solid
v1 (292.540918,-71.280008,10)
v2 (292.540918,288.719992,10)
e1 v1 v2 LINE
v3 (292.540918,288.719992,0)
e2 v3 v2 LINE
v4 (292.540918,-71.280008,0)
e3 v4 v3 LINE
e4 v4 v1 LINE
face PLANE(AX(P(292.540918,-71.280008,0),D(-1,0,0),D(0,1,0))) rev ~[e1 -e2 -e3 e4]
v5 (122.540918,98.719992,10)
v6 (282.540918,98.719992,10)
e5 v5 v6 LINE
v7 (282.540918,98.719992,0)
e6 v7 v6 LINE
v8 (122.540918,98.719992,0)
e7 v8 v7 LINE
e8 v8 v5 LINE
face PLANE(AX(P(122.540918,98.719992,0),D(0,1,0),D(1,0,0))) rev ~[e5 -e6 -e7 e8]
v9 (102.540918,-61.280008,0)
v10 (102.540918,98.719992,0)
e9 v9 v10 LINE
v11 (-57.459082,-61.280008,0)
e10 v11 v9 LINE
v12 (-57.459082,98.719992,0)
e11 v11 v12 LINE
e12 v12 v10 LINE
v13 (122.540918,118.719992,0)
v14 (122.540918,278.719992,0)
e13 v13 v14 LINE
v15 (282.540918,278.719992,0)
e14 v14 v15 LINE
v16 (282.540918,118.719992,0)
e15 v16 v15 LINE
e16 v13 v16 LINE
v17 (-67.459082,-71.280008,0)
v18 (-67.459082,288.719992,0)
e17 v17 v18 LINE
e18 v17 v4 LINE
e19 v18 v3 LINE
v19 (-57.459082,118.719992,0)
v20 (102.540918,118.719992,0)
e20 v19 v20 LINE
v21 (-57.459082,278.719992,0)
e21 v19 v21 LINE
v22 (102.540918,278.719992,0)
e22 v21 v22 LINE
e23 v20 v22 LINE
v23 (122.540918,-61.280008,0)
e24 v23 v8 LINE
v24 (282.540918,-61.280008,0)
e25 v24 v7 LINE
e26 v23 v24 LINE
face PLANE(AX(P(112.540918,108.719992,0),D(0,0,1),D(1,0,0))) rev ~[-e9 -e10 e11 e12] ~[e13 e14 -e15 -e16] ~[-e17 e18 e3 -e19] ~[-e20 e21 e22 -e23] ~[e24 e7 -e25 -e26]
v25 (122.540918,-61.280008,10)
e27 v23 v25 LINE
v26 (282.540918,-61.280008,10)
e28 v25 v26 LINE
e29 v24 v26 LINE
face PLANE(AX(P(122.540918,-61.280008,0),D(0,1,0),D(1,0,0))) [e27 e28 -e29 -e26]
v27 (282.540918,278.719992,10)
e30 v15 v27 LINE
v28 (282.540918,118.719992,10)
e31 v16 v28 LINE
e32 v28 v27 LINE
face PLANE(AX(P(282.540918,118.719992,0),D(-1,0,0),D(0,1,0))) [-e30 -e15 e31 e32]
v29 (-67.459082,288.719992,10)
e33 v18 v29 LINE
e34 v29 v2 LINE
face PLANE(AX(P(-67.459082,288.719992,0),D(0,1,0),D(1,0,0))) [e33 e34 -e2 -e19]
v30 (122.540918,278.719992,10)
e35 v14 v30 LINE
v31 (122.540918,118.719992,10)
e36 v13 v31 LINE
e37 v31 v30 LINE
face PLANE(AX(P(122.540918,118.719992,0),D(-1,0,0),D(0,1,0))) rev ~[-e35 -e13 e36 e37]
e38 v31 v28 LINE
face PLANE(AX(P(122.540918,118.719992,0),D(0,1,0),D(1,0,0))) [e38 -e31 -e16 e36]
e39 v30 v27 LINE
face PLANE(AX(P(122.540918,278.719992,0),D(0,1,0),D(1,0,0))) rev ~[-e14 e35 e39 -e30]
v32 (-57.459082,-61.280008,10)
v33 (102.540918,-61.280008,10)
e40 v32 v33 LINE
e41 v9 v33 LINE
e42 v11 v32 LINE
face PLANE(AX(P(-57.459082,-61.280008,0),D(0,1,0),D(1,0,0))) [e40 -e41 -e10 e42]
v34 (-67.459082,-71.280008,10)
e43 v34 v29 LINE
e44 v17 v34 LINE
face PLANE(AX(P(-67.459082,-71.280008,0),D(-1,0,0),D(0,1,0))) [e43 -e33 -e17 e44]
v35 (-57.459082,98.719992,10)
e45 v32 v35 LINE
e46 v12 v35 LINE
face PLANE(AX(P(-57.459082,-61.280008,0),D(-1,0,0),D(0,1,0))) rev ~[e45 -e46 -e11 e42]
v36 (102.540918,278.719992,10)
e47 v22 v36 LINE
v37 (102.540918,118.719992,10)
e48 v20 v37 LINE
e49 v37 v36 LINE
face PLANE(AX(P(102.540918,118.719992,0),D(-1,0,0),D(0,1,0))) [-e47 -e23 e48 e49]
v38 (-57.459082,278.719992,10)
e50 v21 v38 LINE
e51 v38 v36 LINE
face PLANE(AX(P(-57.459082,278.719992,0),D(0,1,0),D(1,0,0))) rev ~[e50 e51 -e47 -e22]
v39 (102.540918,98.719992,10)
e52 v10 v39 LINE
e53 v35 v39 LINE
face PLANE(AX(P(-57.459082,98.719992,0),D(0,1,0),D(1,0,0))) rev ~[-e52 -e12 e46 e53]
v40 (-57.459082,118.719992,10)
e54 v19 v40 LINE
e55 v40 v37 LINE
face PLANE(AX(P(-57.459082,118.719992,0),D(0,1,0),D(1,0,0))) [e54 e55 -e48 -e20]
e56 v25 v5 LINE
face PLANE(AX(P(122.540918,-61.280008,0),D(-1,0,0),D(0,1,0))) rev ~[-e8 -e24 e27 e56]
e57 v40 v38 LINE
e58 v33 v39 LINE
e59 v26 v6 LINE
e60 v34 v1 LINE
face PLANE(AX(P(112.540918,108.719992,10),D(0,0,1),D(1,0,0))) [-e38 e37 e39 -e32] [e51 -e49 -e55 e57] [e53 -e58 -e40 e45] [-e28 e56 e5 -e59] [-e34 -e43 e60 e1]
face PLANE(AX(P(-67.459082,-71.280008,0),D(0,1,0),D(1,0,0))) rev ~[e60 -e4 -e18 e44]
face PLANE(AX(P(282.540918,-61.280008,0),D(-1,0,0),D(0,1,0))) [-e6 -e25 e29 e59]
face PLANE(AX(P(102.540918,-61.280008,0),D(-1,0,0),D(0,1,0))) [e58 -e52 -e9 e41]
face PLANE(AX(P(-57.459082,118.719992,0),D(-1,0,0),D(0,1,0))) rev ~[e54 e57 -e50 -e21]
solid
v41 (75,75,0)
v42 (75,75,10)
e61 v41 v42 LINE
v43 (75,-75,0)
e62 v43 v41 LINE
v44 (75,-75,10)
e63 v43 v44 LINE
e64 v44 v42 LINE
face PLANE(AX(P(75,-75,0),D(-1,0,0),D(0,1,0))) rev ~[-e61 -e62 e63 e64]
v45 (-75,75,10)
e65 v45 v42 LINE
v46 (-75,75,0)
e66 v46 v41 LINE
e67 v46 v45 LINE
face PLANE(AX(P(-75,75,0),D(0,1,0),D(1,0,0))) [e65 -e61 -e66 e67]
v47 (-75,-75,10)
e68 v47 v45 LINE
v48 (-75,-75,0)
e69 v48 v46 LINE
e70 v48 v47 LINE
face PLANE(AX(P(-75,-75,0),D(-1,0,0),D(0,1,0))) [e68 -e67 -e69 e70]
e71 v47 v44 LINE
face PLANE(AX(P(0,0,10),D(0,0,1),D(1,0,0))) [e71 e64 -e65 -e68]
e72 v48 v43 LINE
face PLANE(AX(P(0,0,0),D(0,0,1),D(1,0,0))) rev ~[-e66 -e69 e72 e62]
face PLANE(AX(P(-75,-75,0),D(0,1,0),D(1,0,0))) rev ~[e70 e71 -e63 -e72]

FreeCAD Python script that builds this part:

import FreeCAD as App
import Part
import Sketcher

doc = App.newDocument("Part")
body = doc.addObject("PartDesign::Body", "Body")

# Sketch on XY plane
sketch1 = doc.addObject("Sketcher::SketchObject", "Sketch")
body.addObject(sketch1)
sketch1.AttachmentSupport = (doc.XY_Plane, [""])
sketch1.MapMode = "FlatFace"
sketch1.addGeometry([
    Part.LineSegment(App.Vector(-75, 75, 0), App.Vector(-75, -75, 0)),
    Part.LineSegment(App.Vector(-75, -75, 0), App.Vector(75, -75, 0)),
    Part.LineSegment(App.Vector(75, -75, 0), App.Vector(75, 75, 0)),
    Part.LineSegment(App.Vector(75, 75, 0), App.Vector(-75, 75, 0)),
], False)
sketch1.addConstraint([
    Sketcher.Constraint("Coincident", 0, 2, 1, 1),
    Sketcher.Constraint("Coincident", 1, 2, 2, 1),
    Sketcher.Constraint("Coincident", 2, 2, 3, 1),
    Sketcher.Constraint("Coincident", 3, 2, 0, 1),
    Sketcher.Constraint("Vertical", 0),
    Sketcher.Constraint("Horizontal", 1),
    Sketcher.Constraint("Vertical", 2),
    Sketcher.Constraint("Horizontal", 3),
    Sketcher.Constraint("Symmetric", 0, 2, 2, 2, -1, 1),
    Sketcher.Constraint("Equal", 3, 0),
    Sketcher.Constraint("DistanceX", 1, 1, 1, 2, 150.0),
])
pad1 = doc.addObject("PartDesign::Pad", "Pad")
body.addObject(pad1)
pad1.Profile = sketch1
pad1.Length = 10
body2 = doc.addObject("PartDesign::Body", "Body001")

# Sketch on XY plane
sketch2 = doc.addObject("Sketcher::SketchObject", "Sketch001")
body2.addObject(sketch2)
sketch2.AttachmentSupport = (doc.getObject("XY_Plane001"), [""])
sketch2.MapMode = "FlatFace"
sketch2.addGeometry([
    Part.LineSegment(App.Vector(-67, 289, 0), App.Vector(-67, -71, 0)),  # 0
    Part.LineSegment(App.Vector(-67, -71, 0), App.Vector(293, -71, 0)),  # 1
    Part.LineSegment(App.Vector(293, -71, 0), App.Vector(293, 289, 0)),  # 2
    Part.LineSegment(App.Vector(293, 289, 0), App.Vector(-67, 289, 0)),  # 3
    Part.LineSegment(App.Vector(103, -61, 0), App.Vector(-57, -61, 0)),  # 4
    Part.LineSegment(App.Vector(-57, -61, 0), App.Vector(-57, 99, 0)),  # 5
    Part.LineSegment(App.Vector(-57, 99, 0), App.Vector(103, 99, 0)),  # 6
    Part.LineSegment(App.Vector(103, 99, 0), App.Vector(103, -61, 0)),  # 7
    Part.LineSegment(App.Vector(283, -61, 0), App.Vector(123, -61, 0)),  # 8
    Part.LineSegment(App.Vector(123, -61, 0), App.Vector(123, 99, 0)),  # 9
    Part.LineSegment(App.Vector(123, 99, 0), App.Vector(283, 99, 0)),  # 10
    Part.LineSegment(App.Vector(283, 99, 0), App.Vector(283, -61, 0)),  # 11
    Part.LineSegment(App.Vector(103, 119, 0), App.Vector(-57, 119, 0)),  # 12
    Part.LineSegment(App.Vector(-57, 119, 0), App.Vector(-57, 279, 0)),  # 13
    Part.LineSegment(App.Vector(-57, 279, 0), App.Vector(103, 279, 0)),  # 14
    Part.LineSegment(App.Vector(103, 279, 0), App.Vector(103, 119, 0)),  # 15
    Part.LineSegment(App.Vector(283, 119, 0), App.Vector(123, 119, 0)),  # 16
    Part.LineSegment(App.Vector(123, 119, 0), App.Vector(123, 279, 0)),  # 17
    Part.LineSegment(App.Vector(123, 279, 0), App.Vector(283, 279, 0)),  # 18
    Part.LineSegment(App.Vector(283, 279, 0), App.Vector(283, 119, 0)),  # 19
], False)
sketch2.addConstraint([
    Sketcher.Constraint("Coincident", 0, 2, 1, 1),
    Sketcher.Constraint("Coincident", 1, 2, 2, 1),
    Sketcher.Constraint("Coincident", 2, 2, 3, 1),
    Sketcher.Constraint("Coincident", 3, 2, 0, 1),
    Sketcher.Constraint("Coincident", 4, 2, 5, 1),
    Sketcher.Constraint("Coincident", 5, 2, 6, 1),
    Sketcher.Constraint("Coincident", 6, 2, 7, 1),
    Sketcher.Constraint("Coincident", 7, 2, 4, 1),
    Sketcher.Constraint("Coincident", 8, 2, 9, 1),
    Sketcher.Constraint("Coincident", 9, 2, 10, 1),
    Sketcher.Constraint("Coincident", 10, 2, 11, 1),
    Sketcher.Constraint("Coincident", 11, 2, 8, 1),
    Sketcher.Constraint("Coincident", 12, 2, 13, 1),
    Sketcher.Constraint("Coincident", 13, 2, 14, 1),
    Sketcher.Constraint("Coincident", 14, 2, 15, 1),
    Sketcher.Constraint("Coincident", 15, 2, 12, 1),
    Sketcher.Constraint("Coincident", 16, 2, 17, 1),
    Sketcher.Constraint("Coincident", 17, 2, 18, 1),
    Sketcher.Constraint("Coincident", 18, 2, 19, 1),
    Sketcher.Constraint("Coincident", 19, 2, 16, 1),
    Sketcher.Constraint("Vertical", 0),
    Sketcher.Constraint("Horizontal", 1),
    Sketcher.Constraint("Vertical", 2),
    Sketcher.Constraint("Horizontal", 3),
    Sketcher.Constraint("Horizontal", 4),
    Sketcher.Constraint("Vertical", 5),
    Sketcher.Constraint("Horizontal", 6),
    Sketcher.Constraint("Vertical", 7),
    Sketcher.Constraint("Horizontal", 8),
    Sketcher.Constraint("Vertical", 9),
    Sketcher.Constraint("Horizontal", 10),
    Sketcher.Constraint("Vertical", 11),
    Sketcher.Constraint("Horizontal", 12),
    Sketcher.Constraint("Vertical", 13),
    Sketcher.Constraint("Horizontal", 14),
    Sketcher.Constraint("Vertical", 15),
    Sketcher.Constraint("Horizontal", 16),
    Sketcher.Constraint("Vertical", 17),
    Sketcher.Constraint("Horizontal", 18),
    Sketcher.Constraint("Vertical", 19),
    Sketcher.Constraint("Horizontal", 7, 2, 8, 2),
    Sketcher.Constraint("Horizontal", 6, 2, 9, 2),
    Sketcher.Constraint("Horizontal", 15, 2, 16, 2),
    Sketcher.Constraint("Horizontal", 14, 2, 17, 2),
    Sketcher.Constraint("Vertical", 5, 2, 12, 2),
    Sketcher.Constraint("Vertical", 7, 2, 14, 2),
    Sketcher.Constraint("Vertical", 9, 2, 16, 2),
    Sketcher.Constraint("Vertical", 11, 2, 18, 2),
    Sketcher.Constraint("Equal", 6, 8),
    Sketcher.Constraint("Equal", 3, 0),
    Sketcher.Constraint("Equal", 18, 5),
    Sketcher.Constraint("Equal", 11, 13),
    Sketcher.Constraint("DistanceX", 1, 1, 1, 2, 360.0),
    Sketcher.Constraint("DistanceX", 4, 2, 4, 1, 160.0),
    Sketcher.Constraint("DistanceX", 0, 2, 4, 2, 10.0),
    Sketcher.Constraint("DistanceY", 0, 2, 4, 2, 10.0),
    Sketcher.Constraint("DistanceX", 7, 2, 8, 2, 20.0),
    Sketcher.Constraint("DistanceY", 5, 2, 12, 2, 20.0),
    Sketcher.Constraint("DistanceX", 0, 2, -1, 1, 67.459082),
    Sketcher.Constraint("DistanceY", -1, 1, 2, 2, 288.719992),
])
pad2 = doc.addObject("PartDesign::Pad", "Pad001")
body2.addObject(pad2)
pad2.Profile = sketch2
pad2.Length = 10

doc.recompute()
